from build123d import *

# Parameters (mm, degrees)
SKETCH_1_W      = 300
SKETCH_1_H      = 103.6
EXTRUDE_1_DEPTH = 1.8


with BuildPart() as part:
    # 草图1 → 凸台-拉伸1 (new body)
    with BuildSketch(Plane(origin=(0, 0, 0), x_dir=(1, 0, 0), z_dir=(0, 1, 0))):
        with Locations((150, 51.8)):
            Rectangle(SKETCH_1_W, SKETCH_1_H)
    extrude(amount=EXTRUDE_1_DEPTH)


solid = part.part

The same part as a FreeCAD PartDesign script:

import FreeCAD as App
import Part
import Sketcher
Q = App.Units.Quantity

doc = App.newDocument("Part")
body = doc.addObject("PartDesign::Body", "Body")

# Sketch on XZ plane
sketch1 = body.newObject("Sketcher::SketchObject", "Sketch")
sketch1.AttachmentSupport = (doc.getObject("XZ_Plane"), [""])
sketch1.MapMode = "FlatFace"
sketch1.addGeometry(Part.LineSegment(App.Vector(0, -104, 0), App.Vector(0, 0, 0)), False)
sketch1.addGeometry(Part.LineSegment(App.Vector(0, 0, 0), App.Vector(300, 0, 0)), False)
sketch1.addGeometry(Part.LineSegment(App.Vector(300, 0, 0), App.Vector(300, -104, 0)), False)
sketch1.addGeometry(Part.LineSegment(App.Vector(300, -104, 0), App.Vector(0, -104, 0)), False)
sketch1.addConstraint(Sketcher.Constraint("Coincident", 0, 2, 1, 1))
sketch1.addConstraint(Sketcher.Constraint("Coincident", 1, 2, 2, 1))
sketch1.addConstraint(Sketcher.Constraint("Coincident", 2, 2, 3, 1))
sketch1.addConstraint(Sketcher.Constraint("Coincident", 3, 2, 0, 1))
sketch1.addConstraint(Sketcher.Constraint("Vertical", 0))
sketch1.addConstraint(Sketcher.Constraint("Horizontal", 1))
sketch1.addConstraint(Sketcher.Constraint("Vertical", 2))
sketch1.addConstraint(Sketcher.Constraint("Horizontal", 3))
sketch1.addConstraint(Sketcher.Constraint("Coincident", 0, 2, -1, 1))
sketch1.addConstraint(Sketcher.Constraint("DistanceX", 1, 1, 1, 2, Q("300 mm")))
sketch1.addConstraint(Sketcher.Constraint("DistanceY", 0, 1, 0, 2, Q("103.6 mm")))
pad1 = body.newObject("PartDesign::Pad", "Pad")
pad1.Profile = sketch1
pad1.Length = 1.8
pad1.Reversed = True

doc.recompute()
